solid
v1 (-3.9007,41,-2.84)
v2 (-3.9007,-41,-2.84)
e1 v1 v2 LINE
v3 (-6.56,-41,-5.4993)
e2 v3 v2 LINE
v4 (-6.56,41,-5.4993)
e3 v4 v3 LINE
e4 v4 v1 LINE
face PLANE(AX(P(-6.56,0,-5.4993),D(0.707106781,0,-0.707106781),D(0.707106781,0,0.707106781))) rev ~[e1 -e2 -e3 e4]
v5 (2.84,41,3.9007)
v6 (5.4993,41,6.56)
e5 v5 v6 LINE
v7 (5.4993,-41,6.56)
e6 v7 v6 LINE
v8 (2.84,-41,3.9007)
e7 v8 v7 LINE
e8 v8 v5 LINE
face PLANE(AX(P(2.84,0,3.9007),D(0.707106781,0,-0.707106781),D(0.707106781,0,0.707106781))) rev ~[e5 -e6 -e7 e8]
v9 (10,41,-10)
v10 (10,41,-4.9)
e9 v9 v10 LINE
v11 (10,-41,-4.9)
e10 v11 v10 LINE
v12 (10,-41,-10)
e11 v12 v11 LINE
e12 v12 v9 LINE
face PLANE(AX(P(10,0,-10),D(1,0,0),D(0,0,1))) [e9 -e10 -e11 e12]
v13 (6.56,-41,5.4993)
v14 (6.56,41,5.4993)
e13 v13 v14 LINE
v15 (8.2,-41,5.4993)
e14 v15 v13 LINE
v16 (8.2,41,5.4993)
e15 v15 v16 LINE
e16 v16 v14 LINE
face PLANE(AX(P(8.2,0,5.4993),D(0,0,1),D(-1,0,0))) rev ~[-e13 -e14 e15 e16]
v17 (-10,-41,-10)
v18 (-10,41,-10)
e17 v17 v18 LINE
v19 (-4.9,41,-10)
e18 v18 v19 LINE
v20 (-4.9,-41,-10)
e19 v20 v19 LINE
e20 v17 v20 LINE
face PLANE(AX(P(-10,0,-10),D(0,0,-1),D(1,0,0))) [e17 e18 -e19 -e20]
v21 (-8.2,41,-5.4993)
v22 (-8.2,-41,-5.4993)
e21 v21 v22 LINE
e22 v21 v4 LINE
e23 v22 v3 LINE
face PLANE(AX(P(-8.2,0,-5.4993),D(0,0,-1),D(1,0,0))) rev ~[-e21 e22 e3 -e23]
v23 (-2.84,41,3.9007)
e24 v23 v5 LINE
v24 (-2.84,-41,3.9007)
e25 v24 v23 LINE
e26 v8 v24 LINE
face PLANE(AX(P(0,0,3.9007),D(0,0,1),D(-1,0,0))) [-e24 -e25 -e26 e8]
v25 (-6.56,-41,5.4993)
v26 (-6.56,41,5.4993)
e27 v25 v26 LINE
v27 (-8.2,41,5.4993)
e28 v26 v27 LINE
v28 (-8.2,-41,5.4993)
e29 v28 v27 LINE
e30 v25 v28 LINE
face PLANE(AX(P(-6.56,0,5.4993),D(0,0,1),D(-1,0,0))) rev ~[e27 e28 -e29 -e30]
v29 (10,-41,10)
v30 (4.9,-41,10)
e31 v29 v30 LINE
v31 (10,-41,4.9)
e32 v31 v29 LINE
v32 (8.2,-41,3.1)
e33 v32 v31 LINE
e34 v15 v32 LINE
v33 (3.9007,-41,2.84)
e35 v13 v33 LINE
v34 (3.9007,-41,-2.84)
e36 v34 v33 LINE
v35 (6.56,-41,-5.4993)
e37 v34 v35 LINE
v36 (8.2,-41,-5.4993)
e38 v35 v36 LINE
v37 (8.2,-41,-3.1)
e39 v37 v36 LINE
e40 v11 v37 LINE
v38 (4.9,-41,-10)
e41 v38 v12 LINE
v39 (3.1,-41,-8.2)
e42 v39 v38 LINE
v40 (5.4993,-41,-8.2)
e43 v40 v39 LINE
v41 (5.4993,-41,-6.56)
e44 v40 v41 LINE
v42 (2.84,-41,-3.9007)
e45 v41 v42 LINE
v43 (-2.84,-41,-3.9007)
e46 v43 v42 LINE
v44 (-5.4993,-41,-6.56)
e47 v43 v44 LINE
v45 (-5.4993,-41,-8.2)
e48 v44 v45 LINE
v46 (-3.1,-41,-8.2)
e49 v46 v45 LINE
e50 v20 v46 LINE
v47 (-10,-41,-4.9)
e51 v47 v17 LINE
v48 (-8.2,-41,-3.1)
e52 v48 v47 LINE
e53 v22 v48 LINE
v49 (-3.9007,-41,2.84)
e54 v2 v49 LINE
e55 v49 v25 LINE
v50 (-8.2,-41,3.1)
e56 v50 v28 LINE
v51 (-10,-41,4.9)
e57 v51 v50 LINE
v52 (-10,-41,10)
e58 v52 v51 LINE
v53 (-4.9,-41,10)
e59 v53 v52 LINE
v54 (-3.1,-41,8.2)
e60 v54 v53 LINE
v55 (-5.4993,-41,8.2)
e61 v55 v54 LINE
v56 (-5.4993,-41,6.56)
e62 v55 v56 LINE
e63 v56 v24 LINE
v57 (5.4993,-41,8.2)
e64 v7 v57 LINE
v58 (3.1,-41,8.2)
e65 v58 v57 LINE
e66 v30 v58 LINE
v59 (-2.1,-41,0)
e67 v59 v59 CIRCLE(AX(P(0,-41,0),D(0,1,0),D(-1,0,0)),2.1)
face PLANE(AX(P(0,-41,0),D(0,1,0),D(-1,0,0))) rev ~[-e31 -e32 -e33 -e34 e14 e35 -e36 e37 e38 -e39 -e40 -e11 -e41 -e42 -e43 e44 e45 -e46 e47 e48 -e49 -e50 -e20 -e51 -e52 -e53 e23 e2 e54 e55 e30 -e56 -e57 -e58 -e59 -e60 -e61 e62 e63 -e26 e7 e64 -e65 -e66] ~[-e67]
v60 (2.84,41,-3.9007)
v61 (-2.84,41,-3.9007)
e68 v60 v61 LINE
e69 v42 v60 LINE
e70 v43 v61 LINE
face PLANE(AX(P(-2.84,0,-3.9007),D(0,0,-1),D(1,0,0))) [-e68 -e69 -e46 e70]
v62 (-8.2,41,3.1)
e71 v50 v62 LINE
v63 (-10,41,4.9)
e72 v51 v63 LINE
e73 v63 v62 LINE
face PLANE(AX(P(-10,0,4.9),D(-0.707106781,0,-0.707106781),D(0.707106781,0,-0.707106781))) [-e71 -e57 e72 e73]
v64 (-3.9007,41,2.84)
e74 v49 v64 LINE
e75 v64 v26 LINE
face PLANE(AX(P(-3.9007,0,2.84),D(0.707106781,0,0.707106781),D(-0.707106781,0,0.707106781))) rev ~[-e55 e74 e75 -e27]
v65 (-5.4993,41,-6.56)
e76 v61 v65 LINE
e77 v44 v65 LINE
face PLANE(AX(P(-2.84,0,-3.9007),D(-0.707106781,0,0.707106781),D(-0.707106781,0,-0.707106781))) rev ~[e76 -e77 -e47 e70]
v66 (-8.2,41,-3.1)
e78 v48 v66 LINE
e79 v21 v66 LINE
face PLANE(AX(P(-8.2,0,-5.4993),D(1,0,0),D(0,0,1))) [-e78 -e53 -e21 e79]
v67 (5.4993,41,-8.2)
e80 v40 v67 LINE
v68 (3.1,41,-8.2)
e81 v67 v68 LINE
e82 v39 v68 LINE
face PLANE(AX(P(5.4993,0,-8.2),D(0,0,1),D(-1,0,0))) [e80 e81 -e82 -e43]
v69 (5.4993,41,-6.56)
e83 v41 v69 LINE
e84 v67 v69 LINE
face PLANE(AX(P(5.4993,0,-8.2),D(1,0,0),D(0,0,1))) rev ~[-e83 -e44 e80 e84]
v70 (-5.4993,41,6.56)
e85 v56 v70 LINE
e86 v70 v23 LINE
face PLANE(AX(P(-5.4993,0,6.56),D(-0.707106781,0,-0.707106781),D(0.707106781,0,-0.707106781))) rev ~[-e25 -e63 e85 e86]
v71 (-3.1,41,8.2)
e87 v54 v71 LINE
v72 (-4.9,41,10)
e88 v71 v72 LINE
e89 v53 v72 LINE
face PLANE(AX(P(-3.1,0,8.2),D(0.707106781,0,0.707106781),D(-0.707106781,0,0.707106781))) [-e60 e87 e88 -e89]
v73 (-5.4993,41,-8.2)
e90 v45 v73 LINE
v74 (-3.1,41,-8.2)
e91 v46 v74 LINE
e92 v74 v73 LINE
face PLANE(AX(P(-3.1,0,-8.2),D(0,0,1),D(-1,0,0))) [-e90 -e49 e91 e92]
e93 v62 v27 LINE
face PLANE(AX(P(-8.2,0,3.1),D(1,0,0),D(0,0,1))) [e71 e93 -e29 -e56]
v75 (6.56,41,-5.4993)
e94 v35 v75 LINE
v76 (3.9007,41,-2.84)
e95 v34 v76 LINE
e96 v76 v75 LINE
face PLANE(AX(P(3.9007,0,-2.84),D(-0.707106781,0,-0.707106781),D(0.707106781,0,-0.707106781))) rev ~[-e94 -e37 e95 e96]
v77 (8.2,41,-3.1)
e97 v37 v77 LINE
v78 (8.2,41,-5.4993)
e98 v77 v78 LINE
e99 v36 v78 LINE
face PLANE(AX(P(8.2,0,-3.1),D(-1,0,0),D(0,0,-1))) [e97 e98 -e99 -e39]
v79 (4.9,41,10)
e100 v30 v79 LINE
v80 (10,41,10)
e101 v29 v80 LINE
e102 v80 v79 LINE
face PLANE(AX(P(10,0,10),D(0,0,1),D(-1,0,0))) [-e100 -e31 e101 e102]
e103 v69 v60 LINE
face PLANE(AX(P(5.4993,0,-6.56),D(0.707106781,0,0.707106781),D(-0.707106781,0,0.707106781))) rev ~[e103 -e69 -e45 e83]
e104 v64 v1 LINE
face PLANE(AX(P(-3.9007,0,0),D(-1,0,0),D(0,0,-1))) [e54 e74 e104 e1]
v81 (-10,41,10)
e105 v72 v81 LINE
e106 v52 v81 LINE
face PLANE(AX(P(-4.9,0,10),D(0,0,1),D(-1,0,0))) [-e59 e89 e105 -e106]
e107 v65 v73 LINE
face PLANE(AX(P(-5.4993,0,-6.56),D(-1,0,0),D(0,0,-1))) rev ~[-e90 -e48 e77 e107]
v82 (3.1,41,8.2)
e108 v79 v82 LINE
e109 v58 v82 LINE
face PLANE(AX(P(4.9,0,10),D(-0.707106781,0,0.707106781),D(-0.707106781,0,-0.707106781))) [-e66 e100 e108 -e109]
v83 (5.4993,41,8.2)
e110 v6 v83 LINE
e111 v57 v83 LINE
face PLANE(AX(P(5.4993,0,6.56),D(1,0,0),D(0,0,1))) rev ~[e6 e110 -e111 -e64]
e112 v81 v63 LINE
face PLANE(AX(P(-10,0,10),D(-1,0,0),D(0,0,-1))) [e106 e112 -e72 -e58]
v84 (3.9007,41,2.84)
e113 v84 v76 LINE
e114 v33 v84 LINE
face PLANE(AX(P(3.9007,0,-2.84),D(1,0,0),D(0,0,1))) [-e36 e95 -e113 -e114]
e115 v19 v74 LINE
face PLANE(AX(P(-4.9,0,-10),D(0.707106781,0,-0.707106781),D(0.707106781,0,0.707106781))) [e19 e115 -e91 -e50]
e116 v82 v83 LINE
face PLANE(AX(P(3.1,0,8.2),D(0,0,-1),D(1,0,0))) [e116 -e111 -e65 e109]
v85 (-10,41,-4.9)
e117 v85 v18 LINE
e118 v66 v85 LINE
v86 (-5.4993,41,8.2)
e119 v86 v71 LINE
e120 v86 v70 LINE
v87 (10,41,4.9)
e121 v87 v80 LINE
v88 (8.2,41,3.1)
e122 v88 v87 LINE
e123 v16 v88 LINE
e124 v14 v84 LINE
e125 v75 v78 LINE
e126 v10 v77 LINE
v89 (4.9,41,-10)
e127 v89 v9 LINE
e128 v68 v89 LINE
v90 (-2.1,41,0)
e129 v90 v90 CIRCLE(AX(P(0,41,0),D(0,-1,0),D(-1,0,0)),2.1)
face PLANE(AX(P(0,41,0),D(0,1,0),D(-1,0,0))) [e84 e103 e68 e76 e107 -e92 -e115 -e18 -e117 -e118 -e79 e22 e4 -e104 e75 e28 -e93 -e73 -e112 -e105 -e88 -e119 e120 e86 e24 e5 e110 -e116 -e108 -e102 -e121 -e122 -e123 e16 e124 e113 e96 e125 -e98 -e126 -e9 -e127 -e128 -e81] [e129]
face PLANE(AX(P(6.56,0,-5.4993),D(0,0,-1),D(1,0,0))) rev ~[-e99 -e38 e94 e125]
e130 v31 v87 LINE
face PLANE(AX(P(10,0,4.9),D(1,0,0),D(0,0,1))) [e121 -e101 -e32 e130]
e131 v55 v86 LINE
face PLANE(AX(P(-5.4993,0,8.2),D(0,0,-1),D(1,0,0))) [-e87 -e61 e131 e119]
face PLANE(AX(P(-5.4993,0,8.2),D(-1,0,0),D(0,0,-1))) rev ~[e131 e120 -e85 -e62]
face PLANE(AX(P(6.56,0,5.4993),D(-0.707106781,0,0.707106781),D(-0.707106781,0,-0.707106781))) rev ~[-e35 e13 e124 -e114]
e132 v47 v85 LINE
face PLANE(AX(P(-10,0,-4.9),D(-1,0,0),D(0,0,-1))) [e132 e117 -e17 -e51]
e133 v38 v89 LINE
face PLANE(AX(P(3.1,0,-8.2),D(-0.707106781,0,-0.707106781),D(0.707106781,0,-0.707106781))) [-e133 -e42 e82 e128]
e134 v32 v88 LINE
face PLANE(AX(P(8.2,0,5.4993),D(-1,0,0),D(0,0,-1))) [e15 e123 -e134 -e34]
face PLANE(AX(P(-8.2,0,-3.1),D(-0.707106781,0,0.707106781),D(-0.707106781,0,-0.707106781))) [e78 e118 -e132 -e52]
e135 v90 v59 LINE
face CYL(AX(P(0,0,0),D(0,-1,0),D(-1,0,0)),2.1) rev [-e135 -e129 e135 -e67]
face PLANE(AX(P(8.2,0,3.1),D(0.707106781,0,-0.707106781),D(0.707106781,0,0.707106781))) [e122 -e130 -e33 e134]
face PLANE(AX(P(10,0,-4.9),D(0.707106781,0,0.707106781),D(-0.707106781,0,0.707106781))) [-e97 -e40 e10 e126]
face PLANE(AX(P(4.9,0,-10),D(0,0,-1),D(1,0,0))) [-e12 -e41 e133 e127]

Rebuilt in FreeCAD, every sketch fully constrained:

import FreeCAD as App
import Part
import Sketcher
Q = App.Units.Quantity


def add_polygon(sketch, points):
    """Adds a closed chain of lines whose ends are joined by coincident constraints."""
    first, n = sketch.GeometryCount, len(points)
    for a, b in zip(points, points[1:] + points[:1]):
        sketch.addGeometry(Part.LineSegment(App.Vector(*a, 0), App.Vector(*b, 0)), False)
    for i in range(n):
        sketch.addConstraint(Sketcher.Constraint("Coincident", first + i, 2, first + (i + 1) % n, 1))

doc = App.newDocument("Part")
body = doc.addObject("PartDesign::Body", "Body")

sketch1 = doc.addObject("Sketcher::SketchObject", "Sketch")
body.addObject(sketch1)
sketch1.AttachmentSupport = (doc.XZ_Plane, [""])
sketch1.MapMode = "FlatFace"
add_polygon(sketch1, [(-3.9007, -2.84), (-3.9007, 2.84), (-6.56, 5.4993), (-8.2, 5.4993), (-8.2, 3.1), (-10, 4.9), (-10, 10), (-4.9, 10), (-3.1, 8.2), (-5.4993, 8.2), (-5.4993, 6.56), (-2.84, 3.9007), (2.84, 3.9007), (5.4993, 6.56), (5.4993, 8.2), (3.1, 8.2), (4.9, 10), (10, 10), (10, 4.9), (8.2, 3.1), (8.2, 5.4993), (6.56, 5.4993), (3.9007, 2.84), (3.9007, -2.84), (6.56, -5.4993), (8.2, -5.4993), (8.2, -3.1), (10, -4.9), (10, -10), (4.9, -10), (3.1, -8.2), (5.4993, -8.2), (5.4993, -6.56), (2.84, -3.9007), (-2.84, -3.9007), (-5.4993, -6.56), (-5.4993, -8.2), (-3.1, -8.2), (-4.9, -10), (-10, -10), (-10, -4.9), (-8.2, -3.1), (-8.2, -5.4993), (-6.56, -5.4993)])
sketch1.addGeometry(Part.Circle(App.Vector(0, 0, 0), App.Vector(0, 0, 1), 2.1), False)
sketch1.addConstraint(Sketcher.Constraint("Vertical", 0))
sketch1.addConstraint(Sketcher.Constraint("Horizontal", 2))
sketch1.addConstraint(Sketcher.Constraint("Vertical", 3))
sketch1.addConstraint(Sketcher.Constraint("Vertical", 5))
sketch1.addConstraint(Sketcher.Constraint("Horizontal", 6))
sketch1.addConstraint(Sketcher.Constraint("Horizontal", 8))
sketch1.addConstraint(Sketcher.Constraint("Vertical", 9))
sketch1.addConstraint(Sketcher.Constraint("Horizontal", 11))
sketch1.addConstraint(Sketcher.Constraint("Vertical", 13))
sketch1.addConstraint(Sketcher.Constraint("Horizontal", 14))
sketch1.addConstraint(Sketcher.Constraint("Horizontal", 16))
sketch1.addConstraint(Sketcher.Constraint("Vertical", 17))
sketch1.addConstraint(Sketcher.Constraint("Vertical", 19))
sketch1.addConstraint(Sketcher.Constraint("Horizontal", 20))
sketch1.addConstraint(Sketcher.Constraint("Vertical", 22))
sketch1.addConstraint(Sketcher.Constraint("Horizontal", 24))
sketch1.addConstraint(Sketcher.Constraint("Vertical", 25))
sketch1.addConstraint(Sketcher.Constraint("Vertical", 27))
sketch1.addConstraint(Sketcher.Constraint("Horizontal", 28))
sketch1.addConstraint(Sketcher.Constraint("Horizontal", 30))
sketch1.addConstraint(Sketcher.Constraint("Vertical", 31))
sketch1.addConstraint(Sketcher.Constraint("Horizontal", 33))
sketch1.addConstraint(Sketcher.Constraint("Vertical", 35))
sketch1.addConstraint(Sketcher.Constraint("Horizontal", 36))
sketch1.addConstraint(Sketcher.Constraint("Horizontal", 38))
sketch1.addConstraint(Sketcher.Constraint("Vertical", 39))
sketch1.addConstraint(Sketcher.Constraint("Vertical", 41))
sketch1.addConstraint(Sketcher.Constraint("Horizontal", 42))
sketch1.addConstraint(Sketcher.Constraint("Coincident", 44, 3, -1, 1))
sketch1.addConstraint(Sketcher.Constraint("Symmetric", 0, 2, 22, 2, -1, 1))
sketch1.addConstraint(Sketcher.Constraint("Symmetric", 1, 2, 23, 2, -1, 1))
sketch1.addConstraint(Sketcher.Constraint("Symmetric", 3, 2, 25, 2, -1, 1))
sketch1.addConstraint(Sketcher.Constraint("Symmetric", 4, 2, 26, 2, -1, 1))
sketch1.addConstraint(Sketcher.Constraint("Symmetric", 6, 2, 28, 2, -1, 1))
sketch1.addConstraint(Sketcher.Constraint("Symmetric", 7, 2, 29, 2, -1, 1))
sketch1.addConstraint(Sketcher.Constraint("Symmetric", 9, 2, 31, 2, -1, 1))
sketch1.addConstraint(Sketcher.Constraint("Symmetric", 10, 2, 32, 2, -1, 1))
sketch1.addConstraint(Sketcher.Constraint("Symmetric", 12, 2, 34, 2, -1, 1))
sketch1.addConstraint(Sketcher.Constraint("Symmetric", 14, 2, 36, 2, -1, 1))
sketch1.addConstraint(Sketcher.Constraint("Symmetric", 15, 2, 37, 2, -1, 1))
sketch1.addConstraint(Sketcher.Constraint("Symmetric", 17, 2, 39, 2, -1, 1))
sketch1.addConstraint(Sketcher.Constraint("Symmetric", 18, 2, 40, 2, -1, 1))
sketch1.addConstraint(Sketcher.Constraint("Symmetric", 20, 2, 42, 2, -1, 1))
sketch1.addConstraint(Sketcher.Constraint("Symmetric", 9, 2, 12, 2, -2))
sketch1.addConstraint(Sketcher.Constraint("Symmetric", 7, 2, 14, 2, -2))
sketch1.addConstraint(Sketcher.Constraint("Symmetric", 6, 2, 15, 2, -2))
sketch1.addConstraint(Sketcher.Constraint("Symmetric", 4, 2, 17, 2, -2))
sketch1.addConstraint(Sketcher.Constraint("Symmetric", 3, 2, 18, 2, -2))
sketch1.addConstraint(Sketcher.Constraint("Symmetric", 1, 2, 20, 2, -2))
sketch1.addConstraint(Sketcher.Constraint("Parallel", 1, 4))
sketch1.addConstraint(Sketcher.Constraint("Parallel", 4, 7))
sketch1.addConstraint(Sketcher.Constraint("Parallel", 7, 10))
sketch1.addConstraint(Sketcher.Constraint("Perpendicular", 10, 12))
sketch1.addConstraint(Sketcher.Constraint("Parallel", 12, 15))
sketch1.addConstraint(Sketcher.Constraint("Parallel", 18, 21))
sketch1.addConstraint(Sketcher.Constraint("Perpendicular", 32, 34))
sketch1.addConstraint(Sketcher.Constraint("Parallel", 40, 43))
sketch1.addConstraint(Sketcher.Constraint("Equal", 33, 0))
sketch1.addConstraint(Sketcher.Constraint("Equal", 36, 3))
sketch1.addConstraint(Sketcher.Constraint("Equal", 38, 5))
sketch1.addConstraint(Sketcher.Constraint("Equal", 42, 9))
sketch1.addConstraint(Sketcher.Constraint("Equal", 4, 7))
sketch1.addConstraint(Sketcher.Constraint("Equal", 1, 10))
sketch1.addConstraint(Sketcher.Constraint("Diameter", 44, Q("4.2 mm")))
sketch1.addConstraint(Sketcher.Constraint("DistanceX", 4, 2, -1, 1, Q("10 mm")))
sketch1.addConstraint(Sketcher.Constraint("DistanceX", 2, 2, 2, 1, Q("1.64 mm")))
sketch1.addConstraint(Sketcher.Constraint("DistanceY", -1, 1, 3, 2, Q("3.1 mm")))
sketch1.addConstraint(Sketcher.Constraint("DistanceX", 4, 2, 2, 2, Q("1.8 mm")))
sketch1.addConstraint(Sketcher.Constraint("DistanceY", -1, 1, 0, 2, Q("2.84 mm")))
sketch1.addConstraint(Sketcher.Constraint("DistanceX", 8, 2, 8, 1, Q("2.3993 mm")))
pad1 = doc.addObject("PartDesign::Pad", "Pad")
body.addObject(pad1)
pad1.Profile = sketch1
pad1.Length = 82
pad1.Midplane = True

doc.recompute()
